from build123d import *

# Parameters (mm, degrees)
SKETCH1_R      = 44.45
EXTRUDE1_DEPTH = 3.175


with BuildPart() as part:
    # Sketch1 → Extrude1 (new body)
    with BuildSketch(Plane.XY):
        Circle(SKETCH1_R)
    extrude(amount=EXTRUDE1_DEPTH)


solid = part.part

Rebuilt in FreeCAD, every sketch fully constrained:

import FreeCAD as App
import Part
import Sketcher
Q = App.Units.Quantity

doc = App.newDocument("Part")
body = doc.addObject("PartDesign::Body", "Body")

sketch1 = doc.addObject("Sketcher::SketchObject", "Sketch")
body.addObject(sketch1)
sketch1.AttachmentSupport = (doc.XY_Plane, [""])
sketch1.MapMode = "FlatFace"
sketch1.addGeometry(Part.Circle(App.Vector(0, 0, 0), App.Vector(0, 0, 1), 44), False)
sketch1.addConstraint(Sketcher.Constraint("Coincident", 0, 3, -1, 1))
sketch1.addConstraint(Sketcher.Constraint("Diameter", 0, Q("3.5 in")))
pad1 = doc.addObject("PartDesign::Pad", "Pad")
body.addObject(pad1)
pad1.Profile = sketch1
pad1.Length = Q("0.125 in")

doc.recompute()
